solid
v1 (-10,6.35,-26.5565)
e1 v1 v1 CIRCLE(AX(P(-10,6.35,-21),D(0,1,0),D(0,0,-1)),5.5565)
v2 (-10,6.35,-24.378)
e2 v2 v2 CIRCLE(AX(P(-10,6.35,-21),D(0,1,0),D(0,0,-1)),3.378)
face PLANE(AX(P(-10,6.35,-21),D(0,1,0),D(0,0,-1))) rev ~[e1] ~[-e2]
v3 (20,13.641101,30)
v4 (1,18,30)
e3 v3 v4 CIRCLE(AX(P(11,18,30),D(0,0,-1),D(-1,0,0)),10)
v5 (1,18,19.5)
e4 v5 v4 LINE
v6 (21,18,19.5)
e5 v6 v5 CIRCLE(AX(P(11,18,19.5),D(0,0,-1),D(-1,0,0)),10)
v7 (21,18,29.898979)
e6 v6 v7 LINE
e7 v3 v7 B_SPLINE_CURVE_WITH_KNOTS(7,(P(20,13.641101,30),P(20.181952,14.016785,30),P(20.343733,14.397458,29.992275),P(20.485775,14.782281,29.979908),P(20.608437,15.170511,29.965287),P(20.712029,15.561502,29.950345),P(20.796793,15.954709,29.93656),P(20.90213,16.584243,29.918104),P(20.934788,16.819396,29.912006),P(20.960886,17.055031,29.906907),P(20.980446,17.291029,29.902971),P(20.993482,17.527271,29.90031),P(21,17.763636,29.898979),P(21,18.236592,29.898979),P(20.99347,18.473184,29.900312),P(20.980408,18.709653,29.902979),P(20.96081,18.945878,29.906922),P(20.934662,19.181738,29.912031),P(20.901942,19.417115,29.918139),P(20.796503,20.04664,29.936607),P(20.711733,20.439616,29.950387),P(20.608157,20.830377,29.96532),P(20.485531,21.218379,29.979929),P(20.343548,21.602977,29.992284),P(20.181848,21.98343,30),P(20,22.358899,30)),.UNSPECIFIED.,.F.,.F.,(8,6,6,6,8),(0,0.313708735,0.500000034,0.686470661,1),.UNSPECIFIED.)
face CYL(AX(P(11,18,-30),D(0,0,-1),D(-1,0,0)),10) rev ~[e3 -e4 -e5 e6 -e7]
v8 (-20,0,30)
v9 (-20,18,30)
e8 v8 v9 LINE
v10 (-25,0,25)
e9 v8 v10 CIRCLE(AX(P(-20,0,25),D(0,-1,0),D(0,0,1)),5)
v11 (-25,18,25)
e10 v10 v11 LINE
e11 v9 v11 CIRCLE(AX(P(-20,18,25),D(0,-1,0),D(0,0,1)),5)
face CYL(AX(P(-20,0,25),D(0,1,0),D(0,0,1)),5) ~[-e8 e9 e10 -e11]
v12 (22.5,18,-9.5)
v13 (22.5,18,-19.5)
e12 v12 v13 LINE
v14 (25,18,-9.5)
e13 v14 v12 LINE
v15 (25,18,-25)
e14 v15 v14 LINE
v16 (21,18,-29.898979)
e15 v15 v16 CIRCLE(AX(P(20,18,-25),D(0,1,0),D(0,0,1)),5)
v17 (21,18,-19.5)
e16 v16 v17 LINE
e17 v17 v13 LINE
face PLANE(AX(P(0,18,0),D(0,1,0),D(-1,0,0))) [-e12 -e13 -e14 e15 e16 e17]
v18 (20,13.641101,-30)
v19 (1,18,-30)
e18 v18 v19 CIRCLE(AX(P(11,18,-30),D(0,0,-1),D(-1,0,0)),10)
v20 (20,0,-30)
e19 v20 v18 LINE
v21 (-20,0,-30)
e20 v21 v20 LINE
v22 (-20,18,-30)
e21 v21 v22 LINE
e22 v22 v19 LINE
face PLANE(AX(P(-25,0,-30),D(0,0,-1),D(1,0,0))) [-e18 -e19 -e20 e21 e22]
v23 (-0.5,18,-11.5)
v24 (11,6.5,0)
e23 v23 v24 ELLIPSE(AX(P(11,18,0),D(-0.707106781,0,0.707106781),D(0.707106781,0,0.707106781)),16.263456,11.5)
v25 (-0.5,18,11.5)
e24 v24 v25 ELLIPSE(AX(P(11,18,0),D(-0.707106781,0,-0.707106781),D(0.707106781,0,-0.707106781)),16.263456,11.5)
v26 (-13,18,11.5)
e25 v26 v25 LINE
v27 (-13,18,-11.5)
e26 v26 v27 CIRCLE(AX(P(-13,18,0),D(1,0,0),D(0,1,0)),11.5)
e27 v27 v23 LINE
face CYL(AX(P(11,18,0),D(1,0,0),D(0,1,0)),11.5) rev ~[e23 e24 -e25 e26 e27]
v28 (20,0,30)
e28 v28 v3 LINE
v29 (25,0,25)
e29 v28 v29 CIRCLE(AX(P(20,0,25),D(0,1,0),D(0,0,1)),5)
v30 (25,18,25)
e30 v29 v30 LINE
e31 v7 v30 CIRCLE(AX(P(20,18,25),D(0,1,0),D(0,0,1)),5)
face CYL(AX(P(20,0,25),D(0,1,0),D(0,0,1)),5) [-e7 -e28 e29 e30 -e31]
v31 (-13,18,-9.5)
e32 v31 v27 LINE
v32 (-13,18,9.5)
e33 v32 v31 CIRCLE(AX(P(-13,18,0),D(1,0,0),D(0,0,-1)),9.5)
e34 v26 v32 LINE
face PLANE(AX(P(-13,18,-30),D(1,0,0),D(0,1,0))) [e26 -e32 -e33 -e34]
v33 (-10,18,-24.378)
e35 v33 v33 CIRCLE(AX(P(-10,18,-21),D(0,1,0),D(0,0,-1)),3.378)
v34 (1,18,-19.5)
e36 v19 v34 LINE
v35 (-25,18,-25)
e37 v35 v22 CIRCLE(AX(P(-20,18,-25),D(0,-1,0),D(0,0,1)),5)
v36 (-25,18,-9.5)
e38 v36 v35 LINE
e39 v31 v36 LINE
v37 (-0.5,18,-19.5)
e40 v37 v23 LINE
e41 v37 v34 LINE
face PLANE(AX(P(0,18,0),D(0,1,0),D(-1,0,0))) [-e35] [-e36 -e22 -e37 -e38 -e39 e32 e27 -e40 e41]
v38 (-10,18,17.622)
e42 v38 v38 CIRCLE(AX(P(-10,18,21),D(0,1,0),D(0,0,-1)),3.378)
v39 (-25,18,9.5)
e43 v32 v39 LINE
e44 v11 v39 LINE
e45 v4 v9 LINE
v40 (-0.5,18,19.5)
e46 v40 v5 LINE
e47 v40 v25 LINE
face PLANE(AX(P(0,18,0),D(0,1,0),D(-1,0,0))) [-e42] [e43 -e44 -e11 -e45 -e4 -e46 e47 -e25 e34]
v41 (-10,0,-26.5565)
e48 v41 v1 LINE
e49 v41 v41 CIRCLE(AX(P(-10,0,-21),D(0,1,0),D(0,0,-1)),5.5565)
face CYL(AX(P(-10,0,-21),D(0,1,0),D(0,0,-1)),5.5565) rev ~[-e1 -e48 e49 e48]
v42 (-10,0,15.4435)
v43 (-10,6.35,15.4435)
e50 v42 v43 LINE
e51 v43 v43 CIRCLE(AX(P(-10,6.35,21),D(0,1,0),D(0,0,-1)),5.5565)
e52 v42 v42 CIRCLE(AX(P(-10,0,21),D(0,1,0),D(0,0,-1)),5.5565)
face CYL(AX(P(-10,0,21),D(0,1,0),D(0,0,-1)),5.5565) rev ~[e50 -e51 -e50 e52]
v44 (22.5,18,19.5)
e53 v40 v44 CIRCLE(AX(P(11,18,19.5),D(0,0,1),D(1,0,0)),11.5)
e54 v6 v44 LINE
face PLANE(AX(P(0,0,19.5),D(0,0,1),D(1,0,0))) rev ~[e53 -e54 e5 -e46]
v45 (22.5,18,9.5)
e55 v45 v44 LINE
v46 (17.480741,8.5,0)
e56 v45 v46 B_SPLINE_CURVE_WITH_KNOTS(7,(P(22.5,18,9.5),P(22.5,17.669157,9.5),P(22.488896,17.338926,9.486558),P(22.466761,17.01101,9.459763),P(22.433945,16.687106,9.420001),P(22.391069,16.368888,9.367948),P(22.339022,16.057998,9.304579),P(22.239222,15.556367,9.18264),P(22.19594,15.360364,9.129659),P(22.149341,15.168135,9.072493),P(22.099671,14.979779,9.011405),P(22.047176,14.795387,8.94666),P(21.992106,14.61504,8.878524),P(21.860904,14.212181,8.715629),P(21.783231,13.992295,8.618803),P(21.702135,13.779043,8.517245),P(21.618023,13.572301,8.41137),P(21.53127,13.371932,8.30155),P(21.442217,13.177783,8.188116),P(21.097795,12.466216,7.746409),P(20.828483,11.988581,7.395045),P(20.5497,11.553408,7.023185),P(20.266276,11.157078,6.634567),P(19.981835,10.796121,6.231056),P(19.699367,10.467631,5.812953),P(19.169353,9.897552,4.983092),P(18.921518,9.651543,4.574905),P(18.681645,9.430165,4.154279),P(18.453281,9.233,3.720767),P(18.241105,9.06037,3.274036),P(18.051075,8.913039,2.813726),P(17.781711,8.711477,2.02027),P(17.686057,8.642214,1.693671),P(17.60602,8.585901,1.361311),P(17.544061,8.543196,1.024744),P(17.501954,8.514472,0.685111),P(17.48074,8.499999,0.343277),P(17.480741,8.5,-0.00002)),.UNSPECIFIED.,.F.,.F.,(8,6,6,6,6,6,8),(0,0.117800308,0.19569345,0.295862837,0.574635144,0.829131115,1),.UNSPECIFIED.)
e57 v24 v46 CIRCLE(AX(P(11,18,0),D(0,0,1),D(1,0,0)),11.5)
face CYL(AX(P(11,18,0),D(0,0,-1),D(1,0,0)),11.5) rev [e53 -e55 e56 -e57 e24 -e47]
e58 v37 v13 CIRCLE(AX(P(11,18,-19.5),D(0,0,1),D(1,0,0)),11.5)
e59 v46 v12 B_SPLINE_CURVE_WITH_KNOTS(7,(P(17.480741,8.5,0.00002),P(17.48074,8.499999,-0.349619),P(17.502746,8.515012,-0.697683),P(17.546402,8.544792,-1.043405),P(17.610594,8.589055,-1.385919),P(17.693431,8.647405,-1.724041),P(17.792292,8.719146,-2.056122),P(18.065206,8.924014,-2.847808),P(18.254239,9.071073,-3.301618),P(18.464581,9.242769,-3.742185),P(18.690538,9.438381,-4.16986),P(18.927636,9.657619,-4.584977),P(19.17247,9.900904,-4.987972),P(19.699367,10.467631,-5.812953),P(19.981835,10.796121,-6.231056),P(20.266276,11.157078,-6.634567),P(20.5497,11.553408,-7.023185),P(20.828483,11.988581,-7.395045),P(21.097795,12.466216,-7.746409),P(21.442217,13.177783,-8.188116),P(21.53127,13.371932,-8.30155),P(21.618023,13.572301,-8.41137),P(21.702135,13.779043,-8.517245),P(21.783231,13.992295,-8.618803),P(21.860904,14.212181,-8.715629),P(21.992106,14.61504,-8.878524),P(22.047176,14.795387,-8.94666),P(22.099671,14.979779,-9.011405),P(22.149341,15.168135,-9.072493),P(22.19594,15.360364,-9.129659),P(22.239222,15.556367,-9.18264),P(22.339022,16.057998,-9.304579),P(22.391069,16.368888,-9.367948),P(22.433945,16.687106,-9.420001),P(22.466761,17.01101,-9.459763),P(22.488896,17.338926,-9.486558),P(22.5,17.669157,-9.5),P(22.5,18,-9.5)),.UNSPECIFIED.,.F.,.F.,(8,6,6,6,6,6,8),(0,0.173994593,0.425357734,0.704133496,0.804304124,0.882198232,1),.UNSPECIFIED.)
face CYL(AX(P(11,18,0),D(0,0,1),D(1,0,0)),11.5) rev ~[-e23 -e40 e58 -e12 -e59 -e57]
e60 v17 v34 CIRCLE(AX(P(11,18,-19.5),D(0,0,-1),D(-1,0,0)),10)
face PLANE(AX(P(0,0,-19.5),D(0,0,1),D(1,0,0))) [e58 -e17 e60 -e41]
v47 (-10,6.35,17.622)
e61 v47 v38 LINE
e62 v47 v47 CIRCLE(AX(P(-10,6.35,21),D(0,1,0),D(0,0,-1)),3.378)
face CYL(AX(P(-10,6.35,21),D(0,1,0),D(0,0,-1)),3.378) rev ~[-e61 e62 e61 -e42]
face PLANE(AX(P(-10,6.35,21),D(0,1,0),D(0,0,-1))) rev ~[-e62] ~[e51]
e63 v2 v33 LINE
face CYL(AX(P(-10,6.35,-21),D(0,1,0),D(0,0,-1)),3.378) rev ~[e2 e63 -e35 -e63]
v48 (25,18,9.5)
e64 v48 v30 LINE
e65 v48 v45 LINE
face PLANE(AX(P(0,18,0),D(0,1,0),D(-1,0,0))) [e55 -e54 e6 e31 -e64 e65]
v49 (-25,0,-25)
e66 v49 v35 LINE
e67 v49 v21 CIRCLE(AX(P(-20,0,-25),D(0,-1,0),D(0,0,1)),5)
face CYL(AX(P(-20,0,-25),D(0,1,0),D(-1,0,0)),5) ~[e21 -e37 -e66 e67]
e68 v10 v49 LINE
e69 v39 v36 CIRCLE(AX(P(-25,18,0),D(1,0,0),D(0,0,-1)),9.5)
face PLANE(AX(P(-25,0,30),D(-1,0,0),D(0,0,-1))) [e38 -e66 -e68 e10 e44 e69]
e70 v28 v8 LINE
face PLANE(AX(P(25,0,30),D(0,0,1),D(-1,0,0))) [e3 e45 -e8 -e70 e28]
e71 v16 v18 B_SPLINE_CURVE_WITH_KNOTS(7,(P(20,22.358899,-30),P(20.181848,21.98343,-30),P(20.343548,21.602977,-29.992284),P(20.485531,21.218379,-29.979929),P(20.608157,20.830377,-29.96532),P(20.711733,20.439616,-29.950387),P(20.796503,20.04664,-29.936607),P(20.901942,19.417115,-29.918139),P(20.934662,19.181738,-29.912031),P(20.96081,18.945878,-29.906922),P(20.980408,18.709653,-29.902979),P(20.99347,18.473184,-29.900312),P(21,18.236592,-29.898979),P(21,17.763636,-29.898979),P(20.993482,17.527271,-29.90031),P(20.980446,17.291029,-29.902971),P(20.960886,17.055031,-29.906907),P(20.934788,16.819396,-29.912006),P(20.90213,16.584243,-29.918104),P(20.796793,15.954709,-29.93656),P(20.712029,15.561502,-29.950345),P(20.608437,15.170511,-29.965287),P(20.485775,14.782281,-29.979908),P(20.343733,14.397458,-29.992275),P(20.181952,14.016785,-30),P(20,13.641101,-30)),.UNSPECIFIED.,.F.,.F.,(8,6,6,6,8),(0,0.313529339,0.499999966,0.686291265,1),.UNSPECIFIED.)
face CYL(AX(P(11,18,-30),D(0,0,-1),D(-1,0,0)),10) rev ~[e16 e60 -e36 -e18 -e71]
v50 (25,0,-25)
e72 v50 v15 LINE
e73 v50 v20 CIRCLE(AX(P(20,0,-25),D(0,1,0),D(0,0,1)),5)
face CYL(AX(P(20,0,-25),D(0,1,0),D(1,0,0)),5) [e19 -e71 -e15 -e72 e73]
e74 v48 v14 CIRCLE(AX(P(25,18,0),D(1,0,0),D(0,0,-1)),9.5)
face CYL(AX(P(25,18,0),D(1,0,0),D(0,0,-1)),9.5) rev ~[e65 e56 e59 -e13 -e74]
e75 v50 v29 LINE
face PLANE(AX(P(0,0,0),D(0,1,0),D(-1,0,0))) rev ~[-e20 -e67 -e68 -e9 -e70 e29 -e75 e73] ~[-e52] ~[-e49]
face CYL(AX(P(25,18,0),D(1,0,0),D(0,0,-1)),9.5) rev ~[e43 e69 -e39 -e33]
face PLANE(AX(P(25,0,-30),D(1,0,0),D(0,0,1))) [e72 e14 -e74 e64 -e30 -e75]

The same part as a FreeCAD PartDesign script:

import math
import FreeCAD as App
import Part
import Sketcher
from FreeCAD import Vector


def edges_at(feature, points):
    """Names of the edges that pass closest to the given points."""
    edges = feature.Shape.Edges
    near = lambda p: min(range(len(edges)), key=lambda i: edges[i].distToShape(Part.Vertex(*p))[0])
    return sorted({f"Edge{near(p) + 1}" for p in points})

doc = App.newDocument("Part")
body = doc.addObject("PartDesign::Body", "Body")

# Sketch on XZ plane
sketch1 = body.newObject("Sketcher::SketchObject", "Sketch")
sketch1.AttachmentSupport = (doc.getObject("XZ_Plane"), [""])
sketch1.MapMode = "FlatFace"
sketch1.addGeometry([
    Part.LineSegment(Vector(-25, 30, 0), Vector(25, 30, 0)),
    Part.LineSegment(Vector(25, 30, 0), Vector(25, -30, 0)),
    Part.LineSegment(Vector(25, -30, 0), Vector(-25, -30, 0)),
    Part.LineSegment(Vector(-25, -30, 0), Vector(-25, 30, 0)),
], False)
sketch1.addConstraint([
    Sketcher.Constraint("Coincident", 0, 2, 1, 1),
    Sketcher.Constraint("Coincident", 1, 2, 2, 1),
    Sketcher.Constraint("Coincident", 2, 2, 3, 1),
    Sketcher.Constraint("Coincident", 3, 2, 0, 1),
    Sketcher.Constraint("Horizontal", 0),
    Sketcher.Constraint("Vertical", 1),
    Sketcher.Constraint("Horizontal", 2),
    Sketcher.Constraint("Vertical", 3),
    Sketcher.Constraint("Symmetric", 0, 2, 2, 2, -1, 1),
    Sketcher.Constraint("DistanceX", 0, 1, 0, 2, 50.0),
    Sketcher.Constraint("DistanceY", 1, 2, 1, 1, 60.0),
])
pad1 = body.newObject("PartDesign::Pad", "Pad")
pad1.Profile = sketch1
pad1.Length = 18
pad1.Reversed = True

# Sketch on YZ plane
sketch2 = body.newObject("Sketcher::SketchObject", "Sketch001")
sketch2.AttachmentSupport = (doc.getObject("YZ_Plane"), [""])
sketch2.MapMode = "FlatFace"
sketch2.AttachmentOffset = App.Placement(Vector(0, 0, 25), App.Rotation())
sketch2.addGeometry([
    Part.ArcOfCircle(Part.Circle(Vector(18, 0, 0), Vector(0, 0, 1), 10), math.radians(90), math.radians(270)),
    Part.LineSegment(Vector(18, -10, 0), Vector(18, 10, 0)),
], False)
sketch2.addConstraint([
    Sketcher.Constraint("Coincident", 0, 1, 1, 2),
    Sketcher.Constraint("Coincident", 1, 1, 0, 2),
    Sketcher.Constraint("Vertical", 1),
    Sketcher.Constraint("PointOnObject", 0, 3, -1),
    Sketcher.Constraint("Radius", 0, 9.5),
    Sketcher.Constraint("DistanceX", -1, 1, 0, 3, 18.0),
    Sketcher.Constraint("DistanceX", -1, 1, 0, 1, 18.0),
])
pocket1 = body.newObject("PartDesign::Pocket", "Pocket")
pocket1.Profile = sketch2
pocket1.Type = "ThroughAll"

# Sketch on XY plane
sketch3 = body.newObject("Sketcher::SketchObject", "Sketch002")
sketch3.AttachmentSupport = (doc.getObject("XY_Plane"), [""])
sketch3.MapMode = "FlatFace"
sketch3.AttachmentOffset = App.Placement(Vector(0, 0, -30), App.Rotation())
sketch3.addGeometry([
    Part.LineSegment(Vector(1, 18, 0), Vector(21, 18, 0)),
    Part.ArcOfCircle(Part.Circle(Vector(11, 18, 0), Vector(0, 0, 1), 10), math.radians(180), math.radians(360)),
], False)
sketch3.addConstraint([
    Sketcher.Constraint("Coincident", 0, 1, 1, 1),
    Sketcher.Constraint("Coincident", 1, 2, 0, 2),
    Sketcher.Constraint("Horizontal", 0),
    Sketcher.Constraint("Horizontal", 1, 3, 0, 1),
    Sketcher.Constraint("Radius", 1, 10.0),
    Sketcher.Constraint("DistanceX", -1, 1, 1, 3, 11.0),
    Sketcher.Constraint("DistanceY", -1, 1, 1, 3, 18.0),
])
pocket2 = body.newObject("PartDesign::Pocket", "Pocket001")
pocket2.Profile = sketch3
pocket2.Type = "ThroughAll"
pocket2.Reversed = True

# Sketch on XY plane
sketch4 = body.newObject("Sketcher::SketchObject", "Sketch003")
sketch4.AttachmentSupport = (doc.getObject("XY_Plane"), [""])
sketch4.MapMode = "FlatFace"
sketch4.addGeometry(Part.Circle(Vector(11, 18, 0), Vector(0, 0, 1), 12), False)
sketch4.addConstraint([
    Sketcher.Constraint("Diameter", 0, 23.0),
    Sketcher.Constraint("DistanceX", -1, 1, 0, 3, 11.0),
    Sketcher.Constraint("DistanceY", -1, 1, 0, 3, 18.0),
])
pocket3 = body.newObject("PartDesign::Pocket", "Pocket002")
pocket3.Profile = sketch4
pocket3.Length = 39
pocket3.Midplane = True

# Sketch on YZ plane
sketch5 = body.newObject("Sketcher::SketchObject", "Sketch004")
sketch5.AttachmentSupport = (doc.getObject("YZ_Plane"), [""])
sketch5.MapMode = "FlatFace"
sketch5.AttachmentOffset = App.Placement(Vector(0, 0, 11), App.Rotation())
sketch5.addGeometry(Part.Circle(Vector(18, 0, 0), Vector(0, 0, 1), 12), False)
sketch5.addConstraint([
    Sketcher.Constraint("PointOnObject", 0, 3, -1),
    Sketcher.Constraint("Diameter", 0, 23.0),
    Sketcher.Constraint("DistanceX", -1, 1, 0, 3, 18.0),
])
pocket4 = body.newObject("PartDesign::Pocket", "Pocket003")
pocket4.Profile = sketch5
pocket4.Length = 24

# Sketch on XZ plane
sketch6 = body.newObject("Sketcher::SketchObject", "Sketch005")
sketch6.AttachmentSupport = (doc.getObject("XZ_Plane"), [""])
sketch6.MapMode = "FlatFace"
sketch6.addGeometry([
    Part.Circle(Vector(-10, -21, 0), Vector(0, 0, 1), 3.4),
    Part.Circle(Vector(-10, 21, 0), Vector(0, 0, 1), 3.4),
], False)
sketch6.addConstraint([
    Sketcher.Constraint("Equal", 0, 1),
    Sketcher.Constraint("Symmetric", 0, 3, 1, 3, -1),
    Sketcher.Constraint("Diameter", 0, 6.756),
    Sketcher.Constraint("DistanceX", 0, 3, -1, 1, 10.0),
    Sketcher.Constraint("DistanceY", 0, 3, -1, 1, 21.0),
])
doc.recompute()
hole = body.newObject("PartDesign::Hole", "Hole")
hole.Profile = sketch6
hole.ThreadType = "None"
hole.Diameter = 6.756
hole.DepthType = "ThroughAll"
hole.HoleCutType = "Counterbore"
hole.HoleCutDiameter = 11.113
hole.HoleCutDepth = 6.35
doc.recompute()

fillet = body.newObject("PartDesign::Fillet", "Fillet")
fillet.Base = (hole, edges_at(hole, [
    (-25, 9, -30),
    (-25, 9, 30),
    (25, 9, 30),
    (25, 9, -30),
]))
fillet.Radius = 5

doc.recompute()
